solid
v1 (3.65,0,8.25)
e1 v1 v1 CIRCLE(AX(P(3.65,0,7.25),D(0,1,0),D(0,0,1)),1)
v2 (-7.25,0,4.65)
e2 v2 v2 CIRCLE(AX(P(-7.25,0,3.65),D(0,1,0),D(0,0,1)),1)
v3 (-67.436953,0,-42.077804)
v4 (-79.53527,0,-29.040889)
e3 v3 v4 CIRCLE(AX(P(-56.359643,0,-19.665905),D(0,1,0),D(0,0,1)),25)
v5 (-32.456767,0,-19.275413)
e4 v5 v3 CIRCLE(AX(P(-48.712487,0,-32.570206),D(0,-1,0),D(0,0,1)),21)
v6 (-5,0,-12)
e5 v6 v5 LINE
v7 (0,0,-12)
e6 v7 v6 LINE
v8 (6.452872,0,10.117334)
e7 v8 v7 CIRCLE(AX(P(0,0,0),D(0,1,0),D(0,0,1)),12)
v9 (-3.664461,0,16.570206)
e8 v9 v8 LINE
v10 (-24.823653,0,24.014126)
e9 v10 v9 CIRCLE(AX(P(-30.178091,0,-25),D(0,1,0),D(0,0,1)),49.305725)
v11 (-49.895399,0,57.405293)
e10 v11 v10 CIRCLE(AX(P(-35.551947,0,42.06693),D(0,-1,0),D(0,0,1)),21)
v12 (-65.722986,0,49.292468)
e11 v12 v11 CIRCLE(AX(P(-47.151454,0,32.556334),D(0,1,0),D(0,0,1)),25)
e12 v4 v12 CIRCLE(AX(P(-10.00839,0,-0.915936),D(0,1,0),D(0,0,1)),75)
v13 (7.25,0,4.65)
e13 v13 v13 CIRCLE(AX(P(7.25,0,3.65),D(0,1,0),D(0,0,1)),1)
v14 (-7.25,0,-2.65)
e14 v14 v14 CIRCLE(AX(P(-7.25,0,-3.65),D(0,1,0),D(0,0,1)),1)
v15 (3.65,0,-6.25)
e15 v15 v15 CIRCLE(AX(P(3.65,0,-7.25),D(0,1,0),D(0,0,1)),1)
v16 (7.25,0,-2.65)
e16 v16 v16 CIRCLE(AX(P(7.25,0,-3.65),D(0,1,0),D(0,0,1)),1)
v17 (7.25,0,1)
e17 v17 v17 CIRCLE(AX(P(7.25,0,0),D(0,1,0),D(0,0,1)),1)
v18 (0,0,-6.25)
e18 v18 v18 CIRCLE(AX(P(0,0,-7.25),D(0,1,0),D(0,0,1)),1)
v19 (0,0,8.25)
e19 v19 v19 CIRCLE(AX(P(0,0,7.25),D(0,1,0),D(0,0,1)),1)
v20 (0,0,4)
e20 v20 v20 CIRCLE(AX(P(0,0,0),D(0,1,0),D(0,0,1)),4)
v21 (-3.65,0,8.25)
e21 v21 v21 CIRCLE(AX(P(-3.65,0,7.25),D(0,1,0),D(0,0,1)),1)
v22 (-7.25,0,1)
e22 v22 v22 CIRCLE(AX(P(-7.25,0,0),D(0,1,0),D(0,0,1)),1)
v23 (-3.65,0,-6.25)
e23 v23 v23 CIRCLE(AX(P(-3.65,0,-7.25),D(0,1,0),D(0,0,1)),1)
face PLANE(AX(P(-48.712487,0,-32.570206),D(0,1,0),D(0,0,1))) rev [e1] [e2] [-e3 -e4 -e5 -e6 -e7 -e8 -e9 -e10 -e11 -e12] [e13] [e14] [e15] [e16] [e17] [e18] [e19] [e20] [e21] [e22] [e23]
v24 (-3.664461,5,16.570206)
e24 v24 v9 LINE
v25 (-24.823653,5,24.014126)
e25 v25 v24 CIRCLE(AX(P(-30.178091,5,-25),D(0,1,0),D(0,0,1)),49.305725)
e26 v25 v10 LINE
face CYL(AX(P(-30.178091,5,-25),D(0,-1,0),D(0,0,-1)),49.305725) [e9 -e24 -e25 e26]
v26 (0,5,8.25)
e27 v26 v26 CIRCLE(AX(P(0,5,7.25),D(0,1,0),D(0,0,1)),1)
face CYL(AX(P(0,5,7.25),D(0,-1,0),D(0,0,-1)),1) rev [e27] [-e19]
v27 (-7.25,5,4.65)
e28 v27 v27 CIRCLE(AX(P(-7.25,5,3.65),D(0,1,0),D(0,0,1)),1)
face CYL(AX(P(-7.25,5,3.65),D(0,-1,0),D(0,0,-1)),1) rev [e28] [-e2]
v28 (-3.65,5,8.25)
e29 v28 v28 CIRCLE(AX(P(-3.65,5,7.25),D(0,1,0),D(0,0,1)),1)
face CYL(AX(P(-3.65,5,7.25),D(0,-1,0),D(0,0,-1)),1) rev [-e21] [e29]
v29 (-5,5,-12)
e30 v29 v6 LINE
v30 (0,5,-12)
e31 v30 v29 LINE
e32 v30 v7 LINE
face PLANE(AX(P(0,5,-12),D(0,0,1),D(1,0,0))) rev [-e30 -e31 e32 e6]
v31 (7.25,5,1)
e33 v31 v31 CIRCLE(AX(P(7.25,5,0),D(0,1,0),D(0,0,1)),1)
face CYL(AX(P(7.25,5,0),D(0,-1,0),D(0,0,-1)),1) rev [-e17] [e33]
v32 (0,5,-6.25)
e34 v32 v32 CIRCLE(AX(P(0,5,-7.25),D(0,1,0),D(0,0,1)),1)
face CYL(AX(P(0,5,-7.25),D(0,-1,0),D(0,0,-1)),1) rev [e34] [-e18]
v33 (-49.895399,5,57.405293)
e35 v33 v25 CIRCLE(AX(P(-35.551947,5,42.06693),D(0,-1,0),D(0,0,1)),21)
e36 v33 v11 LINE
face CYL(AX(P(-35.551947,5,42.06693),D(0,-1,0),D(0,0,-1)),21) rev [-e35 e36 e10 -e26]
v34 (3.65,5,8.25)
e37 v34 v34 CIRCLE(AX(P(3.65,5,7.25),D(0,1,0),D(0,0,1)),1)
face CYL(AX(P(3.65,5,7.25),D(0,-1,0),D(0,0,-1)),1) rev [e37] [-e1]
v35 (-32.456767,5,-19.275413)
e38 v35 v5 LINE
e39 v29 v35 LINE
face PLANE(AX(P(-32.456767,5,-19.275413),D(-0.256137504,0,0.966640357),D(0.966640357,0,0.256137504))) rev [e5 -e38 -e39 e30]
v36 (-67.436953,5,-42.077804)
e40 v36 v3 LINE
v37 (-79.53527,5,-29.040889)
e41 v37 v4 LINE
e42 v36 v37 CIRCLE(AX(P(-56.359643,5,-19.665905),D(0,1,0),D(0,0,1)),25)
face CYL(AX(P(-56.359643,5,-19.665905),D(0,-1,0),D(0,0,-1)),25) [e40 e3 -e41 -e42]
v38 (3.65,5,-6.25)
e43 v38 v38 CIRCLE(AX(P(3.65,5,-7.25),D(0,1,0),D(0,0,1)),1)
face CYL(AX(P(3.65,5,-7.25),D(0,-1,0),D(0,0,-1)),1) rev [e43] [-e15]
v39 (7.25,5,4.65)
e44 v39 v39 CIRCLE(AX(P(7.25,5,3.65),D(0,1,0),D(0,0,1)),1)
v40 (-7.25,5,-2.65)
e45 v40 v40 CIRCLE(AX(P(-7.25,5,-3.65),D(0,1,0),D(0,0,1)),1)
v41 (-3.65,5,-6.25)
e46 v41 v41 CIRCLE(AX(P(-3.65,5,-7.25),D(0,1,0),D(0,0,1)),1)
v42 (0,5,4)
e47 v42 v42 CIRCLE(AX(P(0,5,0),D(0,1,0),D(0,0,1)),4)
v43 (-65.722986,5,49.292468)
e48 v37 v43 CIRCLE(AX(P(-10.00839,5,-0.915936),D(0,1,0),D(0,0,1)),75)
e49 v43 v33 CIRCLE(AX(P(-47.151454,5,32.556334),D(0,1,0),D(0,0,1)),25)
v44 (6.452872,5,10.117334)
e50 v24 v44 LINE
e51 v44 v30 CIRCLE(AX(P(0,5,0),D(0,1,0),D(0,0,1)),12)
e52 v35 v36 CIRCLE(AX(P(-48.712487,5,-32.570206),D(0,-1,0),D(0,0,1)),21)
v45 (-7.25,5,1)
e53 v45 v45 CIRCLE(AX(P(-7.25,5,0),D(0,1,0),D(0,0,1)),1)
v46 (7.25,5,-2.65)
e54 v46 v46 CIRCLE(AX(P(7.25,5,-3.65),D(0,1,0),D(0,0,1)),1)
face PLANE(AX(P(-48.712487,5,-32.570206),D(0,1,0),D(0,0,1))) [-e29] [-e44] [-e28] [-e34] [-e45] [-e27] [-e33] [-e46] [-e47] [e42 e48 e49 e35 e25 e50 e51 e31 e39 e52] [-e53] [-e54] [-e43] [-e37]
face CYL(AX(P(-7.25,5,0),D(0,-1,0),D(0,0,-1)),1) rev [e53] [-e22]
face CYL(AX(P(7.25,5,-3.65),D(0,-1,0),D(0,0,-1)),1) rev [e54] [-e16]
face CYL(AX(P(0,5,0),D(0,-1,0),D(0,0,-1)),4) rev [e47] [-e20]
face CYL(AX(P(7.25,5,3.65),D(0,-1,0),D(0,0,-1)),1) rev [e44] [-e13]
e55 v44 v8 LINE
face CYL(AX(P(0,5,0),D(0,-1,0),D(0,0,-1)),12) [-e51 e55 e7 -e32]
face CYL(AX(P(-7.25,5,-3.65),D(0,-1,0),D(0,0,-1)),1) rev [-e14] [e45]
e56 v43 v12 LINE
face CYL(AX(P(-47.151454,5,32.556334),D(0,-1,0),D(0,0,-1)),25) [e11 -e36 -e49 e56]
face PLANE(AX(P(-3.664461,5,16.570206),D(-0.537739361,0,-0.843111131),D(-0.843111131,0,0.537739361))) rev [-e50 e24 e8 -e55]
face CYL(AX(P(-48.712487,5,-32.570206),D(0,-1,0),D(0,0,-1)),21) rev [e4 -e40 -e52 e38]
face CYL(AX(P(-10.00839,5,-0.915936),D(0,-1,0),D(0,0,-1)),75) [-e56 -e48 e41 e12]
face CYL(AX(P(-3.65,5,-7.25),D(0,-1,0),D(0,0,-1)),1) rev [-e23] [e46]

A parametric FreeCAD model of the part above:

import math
import FreeCAD as App
import Part
import Sketcher

doc = App.newDocument("Part")
params = doc.addObject("Spreadsheet::Sheet", "Params")
for row, (alias, value) in enumerate([
    ("sketch1_diameter", "2 mm"),
    ("sketch1_diameter2", "8 mm"),
    ("sketch1_radius", "21 mm"),
    ("sketch1_radius2", "25 mm"),
    ("sketch1_radius3", "75 mm"),
    ("pad1_length", "5 mm"),
], start=1):
    params.set(f"A{row}", alias)
    params.set(f"B{row}", "=" + value)
    params.setAlias(f"B{row}", alias)

body = doc.addObject("PartDesign::Body", "Body")

sketch1 = body.newObject("Sketcher::SketchObject", "Sketch")
sketch1.AttachmentSupport = (doc.getObject("XZ_Plane"), [""])
sketch1.MapMode = "FlatFace"
sketch1.addGeometry([
    Part.LineSegment(App.Vector(-5, -12, 0), App.Vector(-32.5, -19.3, 0)),
    Part.ArcOfCircle(Part.Circle(App.Vector(-48.7, -32.6, 0), App.Vector(0, 0, 1), 21), math.radians(39), math.radians(207)),
    Part.ArcOfCircle(Part.Circle(App.Vector(-56.4, -19.7, 0), App.Vector(0, 0, 1), 25), math.radians(-158), math.radians(-116)),
    Part.ArcOfCircle(Part.Circle(App.Vector(-10, -0.9, 0), App.Vector(0, 0, 1), 75), math.radians(138), math.radians(202)),
    Part.ArcOfCircle(Part.Circle(App.Vector(-47.2, 32.6, 0), App.Vector(0, 0, 1), 25), math.radians(96), math.radians(138)),
    Part.ArcOfCircle(Part.Circle(App.Vector(-35.6, 42.1, 0), App.Vector(0, 0, 1), 21), math.radians(133), math.radians(301)),
    Part.ArcOfCircle(Part.Circle(App.Vector(-30.2, -25, 0), App.Vector(0, 0, 1), 49.3), math.radians(57), math.radians(84)),
    Part.LineSegment(App.Vector(-3.7, 16.6, 0), App.Vector(6.5, 10.1, 0)),
    Part.ArcOfCircle(Part.Circle(App.Vector(0, 0, 0), App.Vector(0, 0, 1), 12), math.radians(-90), math.radians(57)),
    Part.LineSegment(App.Vector(0, -12, 0), App.Vector(-5, -12, 0)),
    Part.Circle(App.Vector(3.6, 7.2, 0), App.Vector(0, 0, 1), 1),
    Part.Circle(App.Vector(7.2, 3.6, 0), App.Vector(0, 0, 1), 1),
    Part.Circle(App.Vector(0, 7.2, 0), App.Vector(0, 0, 1), 1),
    Part.Circle(App.Vector(-3.6, 7.2, 0), App.Vector(0, 0, 1), 1),
    Part.Circle(App.Vector(-7.2, 3.6, 0), App.Vector(0, 0, 1), 1),
    Part.Circle(App.Vector(7.2, 0, 0), App.Vector(0, 0, 1), 1),
    Part.Circle(App.Vector(7.2, -3.6, 0), App.Vector(0, 0, 1), 1),
    Part.Circle(App.Vector(3.6, -7.2, 0), App.Vector(0, 0, 1), 1),
    Part.Circle(App.Vector(0, 0, 0), App.Vector(0, 0, 1), 4),
    Part.Circle(App.Vector(-7.2, 0, 0), App.Vector(0, 0, 1), 1),
    Part.Circle(App.Vector(-7.2, -3.6, 0), App.Vector(0, 0, 1), 1),
    Part.Circle(App.Vector(0, -7.2, 0), App.Vector(0, 0, 1), 1),
    Part.Circle(App.Vector(-3.6, -7.2, 0), App.Vector(0, 0, 1), 1),
], False)
sketch1.addConstraint([
    Sketcher.Constraint("Coincident", 0, 2, 1, 1),
    Sketcher.Constraint("Coincident", 1, 2, 2, 2),
    Sketcher.Constraint("Tangent", 2, 1, 3, 2),
    Sketcher.Constraint("Tangent", 3, 1, 4, 2),
    Sketcher.Constraint("Coincident", 4, 1, 5, 1),
    Sketcher.Constraint("Coincident", 5, 2, 6, 2),
    Sketcher.Constraint("Tangent", 6, 1, 7, 1),
    Sketcher.Constraint("Tangent", 7, 2, 8, 2),
    Sketcher.Constraint("Tangent", 8, 1, 9, 1),
    Sketcher.Constraint("Coincident", 9, 2, 0, 1),
    Sketcher.Constraint("Horizontal", 9),
    Sketcher.Constraint("Coincident", 8, 3, -1, 1),
    Sketcher.Constraint("Coincident", 18, 3, -1, 1),
    Sketcher.Constraint("Equal", 2, 4),
    Sketcher.Constraint("Equal", 1, 5),
    Sketcher.Constraint("Equal", 10, 11),
    Sketcher.Constraint("Equal", 11, 12),
    Sketcher.Constraint("Equal", 12, 13),
    Sketcher.Constraint("Equal", 13, 14),
    Sketcher.Constraint("Equal", 14, 15),
    Sketcher.Constraint("Equal", 15, 16),
    Sketcher.Constraint("Equal", 16, 17),
    Sketcher.Constraint("Equal", 17, 19),
    Sketcher.Constraint("Equal", 19, 20),
    Sketcher.Constraint("Equal", 20, 21),
    Sketcher.Constraint("Equal", 21, 22),
    Sketcher.Constraint("Symmetric", 14, 3, 16, 3, -1, 1),
    Sketcher.Constraint("Symmetric", 13, 3, 17, 3, -1, 1),
    Sketcher.Constraint("Symmetric", 15, 3, 19, 3, -1, 1),
    Sketcher.Constraint("Symmetric", 11, 3, 20, 3, -1, 1),
    Sketcher.Constraint("Symmetric", 12, 3, 21, 3, -1, 1),
    Sketcher.Constraint("Symmetric", 10, 3, 22, 3, -1, 1),
    Sketcher.Constraint("Symmetric", 10, 3, 13, 3, -2),
    Sketcher.Constraint("Symmetric", 11, 3, 14, 3, -2),
    Sketcher.Constraint("PointOnObject", 12, 3, -2),
    Sketcher.Constraint("PointOnObject", 15, 3, -1),
    Sketcher.Constraint("Horizontal", 10, 3, 12, 3),
    Sketcher.Constraint("Vertical", 11, 3, 15, 3),
    Sketcher.Constraint("Diameter", 10, 2.0),
    Sketcher.Constraint("Diameter", 18, 8.0),
    Sketcher.Constraint("Radius", 1, 21.0),
    Sketcher.Constraint("Radius", 2, 25.0),
    Sketcher.Constraint("Radius", 3, 75.0),
    Sketcher.Constraint("Radius", 8, 12.0),
    Sketcher.Constraint("DistanceX", 9, 2, 9, 1, 5.0),
    Sketcher.Constraint("Distance", 7, 12.0),
    Sketcher.Constraint("DistanceY", 6, 3, -1, 1, 25.0),
    Sketcher.Constraint("DistanceX", 10, 3, 11, 3, 3.6),
    Sketcher.Constraint("DistanceY", 11, 3, 10, 3, 3.6),
    Sketcher.Constraint("DistanceX", 13, 3, 10, 3, 7.3),
    Sketcher.Constraint("DistanceY", 16, 3, 11, 3, 7.3),
    Sketcher.Constraint("Radius", 6, 49.305725),
    Sketcher.Constraint("DistanceX", 4, 1, -1, 1, 49.895399),
    Sketcher.Constraint("DistanceY", 1, 3, 2, 3, 12.904302),
    Sketcher.Constraint("DistanceX", 6, 3, 3, 3, 20.1697),
    Sketcher.Constraint("DistanceY", 1, 2, 2, 3, 22.411899),
    Sketcher.Constraint("DistanceX", 4, 3, 5, 2, 22.327801),
    Sketcher.Constraint("DistanceY", -1, 1, 5, 3, 42.06693),
    Sketcher.Constraint("DistanceX", 2, 1, -1, 1, 79.53527),
    Sketcher.Constraint("DistanceY", 2, 1, -1, 1, 29.040889),
    Sketcher.Constraint("DistanceX", 1, 3, 0, 2, 16.255721),
])
sketch1.setExpression("Constraints[38]", "Params.sketch1_diameter")
sketch1.setExpression("Constraints[39]", "Params.sketch1_diameter2")
sketch1.setExpression("Constraints[40]", "Params.sketch1_radius")
sketch1.setExpression("Constraints[41]", "Params.sketch1_radius2")
sketch1.setExpression("Constraints[42]", "Params.sketch1_radius3")
pad1 = body.newObject("PartDesign::Pad", "Pad")
pad1.Profile = sketch1
pad1.setExpression("Length", "Params.pad1_length")
pad1.Reversed = True

doc.recompute()
